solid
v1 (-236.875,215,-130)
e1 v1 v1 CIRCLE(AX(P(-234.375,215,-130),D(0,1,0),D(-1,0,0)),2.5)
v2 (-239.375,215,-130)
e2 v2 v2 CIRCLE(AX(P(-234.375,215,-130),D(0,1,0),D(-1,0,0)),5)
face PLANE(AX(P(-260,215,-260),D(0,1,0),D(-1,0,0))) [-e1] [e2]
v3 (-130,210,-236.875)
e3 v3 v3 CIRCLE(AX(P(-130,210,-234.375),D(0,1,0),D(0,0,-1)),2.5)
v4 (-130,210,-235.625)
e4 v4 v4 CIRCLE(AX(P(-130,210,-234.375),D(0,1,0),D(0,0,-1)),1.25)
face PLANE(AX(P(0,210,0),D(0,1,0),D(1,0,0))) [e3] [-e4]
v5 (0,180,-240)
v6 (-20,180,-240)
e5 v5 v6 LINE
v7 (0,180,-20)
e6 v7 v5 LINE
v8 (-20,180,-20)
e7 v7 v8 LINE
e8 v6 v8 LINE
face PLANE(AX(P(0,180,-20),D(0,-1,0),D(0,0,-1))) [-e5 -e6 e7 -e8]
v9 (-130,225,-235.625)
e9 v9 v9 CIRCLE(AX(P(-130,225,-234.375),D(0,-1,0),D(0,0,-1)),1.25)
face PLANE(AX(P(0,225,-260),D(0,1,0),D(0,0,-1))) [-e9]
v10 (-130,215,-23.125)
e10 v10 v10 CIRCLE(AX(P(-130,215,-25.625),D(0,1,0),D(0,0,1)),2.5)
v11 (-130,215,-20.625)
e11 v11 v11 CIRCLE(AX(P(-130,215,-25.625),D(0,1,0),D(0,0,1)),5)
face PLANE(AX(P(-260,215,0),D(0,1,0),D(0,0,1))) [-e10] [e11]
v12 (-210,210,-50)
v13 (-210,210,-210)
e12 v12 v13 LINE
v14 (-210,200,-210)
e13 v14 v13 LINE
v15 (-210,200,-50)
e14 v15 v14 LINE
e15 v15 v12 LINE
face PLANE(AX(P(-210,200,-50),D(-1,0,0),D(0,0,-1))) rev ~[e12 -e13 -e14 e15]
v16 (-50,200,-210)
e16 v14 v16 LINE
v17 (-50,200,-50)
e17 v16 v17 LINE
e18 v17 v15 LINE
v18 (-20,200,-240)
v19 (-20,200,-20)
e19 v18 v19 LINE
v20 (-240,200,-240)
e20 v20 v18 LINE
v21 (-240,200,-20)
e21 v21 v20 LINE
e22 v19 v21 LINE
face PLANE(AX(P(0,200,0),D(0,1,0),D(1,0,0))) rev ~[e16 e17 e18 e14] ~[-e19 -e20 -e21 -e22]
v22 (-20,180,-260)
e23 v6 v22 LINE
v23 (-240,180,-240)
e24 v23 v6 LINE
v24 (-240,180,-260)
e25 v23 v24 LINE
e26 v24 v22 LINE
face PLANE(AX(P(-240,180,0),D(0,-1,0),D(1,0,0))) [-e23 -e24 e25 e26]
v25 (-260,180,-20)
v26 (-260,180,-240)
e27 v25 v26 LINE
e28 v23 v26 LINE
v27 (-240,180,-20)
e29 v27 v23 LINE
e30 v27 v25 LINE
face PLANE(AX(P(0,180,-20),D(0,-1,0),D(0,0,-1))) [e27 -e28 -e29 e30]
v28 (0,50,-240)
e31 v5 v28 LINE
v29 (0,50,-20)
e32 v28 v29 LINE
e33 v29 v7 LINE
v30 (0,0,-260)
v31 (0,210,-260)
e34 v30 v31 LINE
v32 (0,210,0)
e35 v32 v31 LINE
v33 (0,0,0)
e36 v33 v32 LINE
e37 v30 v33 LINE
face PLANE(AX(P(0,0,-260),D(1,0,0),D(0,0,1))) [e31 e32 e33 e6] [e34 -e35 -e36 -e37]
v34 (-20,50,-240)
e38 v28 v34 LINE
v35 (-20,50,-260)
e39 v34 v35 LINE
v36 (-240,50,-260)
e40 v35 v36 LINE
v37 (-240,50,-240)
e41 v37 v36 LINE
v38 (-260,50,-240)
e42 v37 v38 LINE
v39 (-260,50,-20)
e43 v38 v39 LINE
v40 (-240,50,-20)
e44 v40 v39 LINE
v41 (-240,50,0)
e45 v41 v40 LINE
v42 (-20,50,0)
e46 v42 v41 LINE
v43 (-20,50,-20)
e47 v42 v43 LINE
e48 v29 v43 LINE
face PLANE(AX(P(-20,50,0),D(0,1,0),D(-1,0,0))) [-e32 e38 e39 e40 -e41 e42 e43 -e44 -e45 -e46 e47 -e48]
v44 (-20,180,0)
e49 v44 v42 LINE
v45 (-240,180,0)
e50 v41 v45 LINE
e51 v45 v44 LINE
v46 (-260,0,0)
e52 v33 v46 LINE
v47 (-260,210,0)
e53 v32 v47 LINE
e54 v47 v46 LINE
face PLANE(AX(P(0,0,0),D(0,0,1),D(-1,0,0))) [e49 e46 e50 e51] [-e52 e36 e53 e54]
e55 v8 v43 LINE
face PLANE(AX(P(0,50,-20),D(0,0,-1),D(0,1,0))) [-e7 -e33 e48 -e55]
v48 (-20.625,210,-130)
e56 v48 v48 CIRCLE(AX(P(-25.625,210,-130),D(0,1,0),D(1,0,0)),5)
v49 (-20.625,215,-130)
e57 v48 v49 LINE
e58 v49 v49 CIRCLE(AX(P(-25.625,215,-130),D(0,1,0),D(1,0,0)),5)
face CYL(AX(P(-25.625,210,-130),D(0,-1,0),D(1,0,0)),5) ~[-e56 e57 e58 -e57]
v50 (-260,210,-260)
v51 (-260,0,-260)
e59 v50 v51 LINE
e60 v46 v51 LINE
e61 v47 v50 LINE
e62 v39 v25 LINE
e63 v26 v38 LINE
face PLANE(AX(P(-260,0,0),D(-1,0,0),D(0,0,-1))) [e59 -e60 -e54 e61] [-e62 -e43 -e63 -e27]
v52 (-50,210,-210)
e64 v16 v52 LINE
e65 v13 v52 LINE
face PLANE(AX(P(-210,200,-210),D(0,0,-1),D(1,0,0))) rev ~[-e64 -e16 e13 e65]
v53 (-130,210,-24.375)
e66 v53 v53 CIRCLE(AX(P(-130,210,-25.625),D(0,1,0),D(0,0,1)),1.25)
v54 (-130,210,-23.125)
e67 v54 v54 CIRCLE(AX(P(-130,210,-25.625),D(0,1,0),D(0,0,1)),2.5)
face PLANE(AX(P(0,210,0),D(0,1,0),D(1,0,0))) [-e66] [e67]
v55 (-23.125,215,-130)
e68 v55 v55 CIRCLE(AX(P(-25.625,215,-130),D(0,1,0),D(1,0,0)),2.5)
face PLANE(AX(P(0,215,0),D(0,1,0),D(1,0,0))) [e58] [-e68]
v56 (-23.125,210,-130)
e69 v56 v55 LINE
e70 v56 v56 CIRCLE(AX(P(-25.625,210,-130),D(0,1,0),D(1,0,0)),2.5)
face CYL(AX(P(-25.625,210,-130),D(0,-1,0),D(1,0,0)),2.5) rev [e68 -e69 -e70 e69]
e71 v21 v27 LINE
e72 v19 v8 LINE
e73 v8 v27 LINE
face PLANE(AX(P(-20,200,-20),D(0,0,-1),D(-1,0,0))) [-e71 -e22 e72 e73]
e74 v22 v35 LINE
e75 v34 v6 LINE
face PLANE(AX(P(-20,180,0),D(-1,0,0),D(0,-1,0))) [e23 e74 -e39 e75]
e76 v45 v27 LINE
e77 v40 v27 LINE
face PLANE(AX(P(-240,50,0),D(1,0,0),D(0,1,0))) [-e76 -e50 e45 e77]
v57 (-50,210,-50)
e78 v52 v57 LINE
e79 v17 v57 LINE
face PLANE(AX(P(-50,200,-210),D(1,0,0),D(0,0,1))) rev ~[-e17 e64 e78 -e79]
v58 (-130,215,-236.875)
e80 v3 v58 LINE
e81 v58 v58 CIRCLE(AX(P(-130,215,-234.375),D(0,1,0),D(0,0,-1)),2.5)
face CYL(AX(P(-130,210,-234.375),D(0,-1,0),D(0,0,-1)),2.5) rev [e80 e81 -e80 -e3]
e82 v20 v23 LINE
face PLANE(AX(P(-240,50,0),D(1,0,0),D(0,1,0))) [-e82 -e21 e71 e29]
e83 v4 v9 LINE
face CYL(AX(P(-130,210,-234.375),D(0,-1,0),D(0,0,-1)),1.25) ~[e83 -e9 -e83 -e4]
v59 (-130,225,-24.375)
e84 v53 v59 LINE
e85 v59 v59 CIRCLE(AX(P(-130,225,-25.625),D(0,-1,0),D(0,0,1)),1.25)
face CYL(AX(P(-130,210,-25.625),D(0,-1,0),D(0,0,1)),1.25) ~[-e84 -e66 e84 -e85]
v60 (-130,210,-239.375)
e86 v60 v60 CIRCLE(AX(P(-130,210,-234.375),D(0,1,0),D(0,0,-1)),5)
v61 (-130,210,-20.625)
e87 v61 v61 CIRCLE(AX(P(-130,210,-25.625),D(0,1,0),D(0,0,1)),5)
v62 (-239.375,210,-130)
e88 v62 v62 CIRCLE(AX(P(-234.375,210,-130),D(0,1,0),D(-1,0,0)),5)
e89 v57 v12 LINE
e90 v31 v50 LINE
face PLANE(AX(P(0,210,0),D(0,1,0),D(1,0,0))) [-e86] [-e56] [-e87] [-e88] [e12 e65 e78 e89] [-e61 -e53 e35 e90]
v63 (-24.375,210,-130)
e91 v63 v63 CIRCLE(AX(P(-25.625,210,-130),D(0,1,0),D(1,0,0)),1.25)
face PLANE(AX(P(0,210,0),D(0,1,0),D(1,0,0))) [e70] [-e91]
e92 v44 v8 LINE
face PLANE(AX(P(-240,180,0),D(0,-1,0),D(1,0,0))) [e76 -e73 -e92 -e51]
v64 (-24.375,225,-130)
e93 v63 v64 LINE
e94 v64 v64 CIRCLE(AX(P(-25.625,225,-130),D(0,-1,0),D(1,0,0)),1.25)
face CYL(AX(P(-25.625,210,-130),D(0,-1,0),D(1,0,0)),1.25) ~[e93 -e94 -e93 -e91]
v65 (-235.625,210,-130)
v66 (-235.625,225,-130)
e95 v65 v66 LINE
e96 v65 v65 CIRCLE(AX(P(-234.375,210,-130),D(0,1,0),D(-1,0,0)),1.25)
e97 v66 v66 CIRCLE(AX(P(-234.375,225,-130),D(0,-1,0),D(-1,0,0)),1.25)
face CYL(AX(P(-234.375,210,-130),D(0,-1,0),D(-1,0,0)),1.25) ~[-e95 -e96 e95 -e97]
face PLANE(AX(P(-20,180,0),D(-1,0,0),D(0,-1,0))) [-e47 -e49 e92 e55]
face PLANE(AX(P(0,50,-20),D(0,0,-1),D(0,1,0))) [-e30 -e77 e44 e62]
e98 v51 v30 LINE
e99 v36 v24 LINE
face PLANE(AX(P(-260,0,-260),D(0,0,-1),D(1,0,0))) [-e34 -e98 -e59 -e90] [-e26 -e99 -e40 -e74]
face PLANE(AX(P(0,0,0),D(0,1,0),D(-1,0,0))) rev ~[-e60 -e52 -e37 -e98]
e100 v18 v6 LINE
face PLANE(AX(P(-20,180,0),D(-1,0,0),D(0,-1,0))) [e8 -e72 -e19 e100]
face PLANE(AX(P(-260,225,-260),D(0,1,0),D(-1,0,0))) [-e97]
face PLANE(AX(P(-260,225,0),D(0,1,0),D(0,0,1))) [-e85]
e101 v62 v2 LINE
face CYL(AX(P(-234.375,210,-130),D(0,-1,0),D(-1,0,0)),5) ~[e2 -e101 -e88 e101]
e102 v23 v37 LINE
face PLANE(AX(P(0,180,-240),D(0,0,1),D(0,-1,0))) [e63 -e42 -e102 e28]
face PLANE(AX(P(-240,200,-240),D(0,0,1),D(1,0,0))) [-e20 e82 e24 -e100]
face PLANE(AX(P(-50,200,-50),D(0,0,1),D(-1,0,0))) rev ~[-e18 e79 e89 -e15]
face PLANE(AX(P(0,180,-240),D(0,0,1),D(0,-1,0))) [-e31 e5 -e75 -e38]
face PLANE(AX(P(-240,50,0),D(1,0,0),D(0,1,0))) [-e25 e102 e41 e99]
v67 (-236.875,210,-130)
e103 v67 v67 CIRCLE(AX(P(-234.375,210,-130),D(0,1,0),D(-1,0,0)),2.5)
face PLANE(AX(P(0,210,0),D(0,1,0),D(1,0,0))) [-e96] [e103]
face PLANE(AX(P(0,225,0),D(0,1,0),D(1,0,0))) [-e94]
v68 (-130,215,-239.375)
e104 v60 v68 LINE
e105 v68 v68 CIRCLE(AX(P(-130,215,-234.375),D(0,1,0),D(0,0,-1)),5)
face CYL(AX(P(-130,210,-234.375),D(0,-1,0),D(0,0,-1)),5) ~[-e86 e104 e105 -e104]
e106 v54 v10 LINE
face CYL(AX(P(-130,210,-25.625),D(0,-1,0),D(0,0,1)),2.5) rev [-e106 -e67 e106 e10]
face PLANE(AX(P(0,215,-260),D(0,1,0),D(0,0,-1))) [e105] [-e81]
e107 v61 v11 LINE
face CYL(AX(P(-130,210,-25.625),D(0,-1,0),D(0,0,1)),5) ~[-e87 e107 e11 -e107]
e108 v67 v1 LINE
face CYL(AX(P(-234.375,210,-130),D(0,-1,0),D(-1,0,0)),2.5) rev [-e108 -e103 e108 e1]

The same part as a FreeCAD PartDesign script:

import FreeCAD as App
import Part
import Sketcher
Q = App.Units.Quantity

doc = App.newDocument("Part")
params = doc.addObject("Spreadsheet::Sheet", "Params")
for row, (alias, value) in enumerate([
    ("sketch1_width", "260 mm"),
    ("pad1_length", "200 mm"),
    ("sketch2_width", "220 mm"),
    ("pocket1_length", "150 mm"),
    ("sketch3_width", "220 mm"),
    ("sketch3_height", "130 mm"),
    ("pocket2_length", "260 mm"),
    ("sketch4_width", "130 mm"),
    ("sketch4_height", "220 mm"),
    ("pocket3_length", "260 mm"),
    ("sketch5_width", "260 mm"),
    ("pad2_length", "10 mm"),
    ("sketch6_diameter", "10 mm"),
    ("sketch6_diameter2", "5 mm"),
    ("pad3_length", "5 mm"),
    ("sketch7_diameter", "2.5 mm"),
    ("pad4_length", "15 mm"),
], start=1):
    params.set(f"A{row}", alias)
    params.set(f"B{row}", "=" + value)
    params.setAlias(f"B{row}", alias)

body = doc.addObject("PartDesign::Body", "Body")

sketch1 = body.newObject("Sketcher::SketchObject", "Sketch")
sketch1.AttachmentSupport = (doc.getObject("XZ_Plane"), [""])
sketch1.MapMode = "FlatFace"
sketch1.addGeometry(Part.LineSegment(App.Vector(-260, 0, 0), App.Vector(0, 0, 0)), False)
sketch1.addGeometry(Part.LineSegment(App.Vector(0, 0, 0), App.Vector(0, -260, 0)), False)
sketch1.addGeometry(Part.LineSegment(App.Vector(0, -260, 0), App.Vector(-260, -260, 0)), False)
sketch1.addGeometry(Part.LineSegment(App.Vector(-260, -260, 0), App.Vector(-260, 0, 0)), False)
sketch1.addConstraint(Sketcher.Constraint("Coincident", 0, 2, 1, 1))
sketch1.addConstraint(Sketcher.Constraint("Coincident", 1, 2, 2, 1))
sketch1.addConstraint(Sketcher.Constraint("Coincident", 2, 2, 3, 1))
sketch1.addConstraint(Sketcher.Constraint("Coincident", 3, 2, 0, 1))
sketch1.addConstraint(Sketcher.Constraint("Horizontal", 0))
sketch1.addConstraint(Sketcher.Constraint("Vertical", 1))
sketch1.addConstraint(Sketcher.Constraint("Horizontal", 2))
sketch1.addConstraint(Sketcher.Constraint("Vertical", 3))
sketch1.addConstraint(Sketcher.Constraint("Coincident", 0, 2, -1, 1))
sketch1.addConstraint(Sketcher.Constraint("Equal", 2, 1))
sketch1.addConstraint(Sketcher.Constraint("DistanceX", 0, 1, 0, 2, Q("260 mm")))
sketch1.setExpression("Constraints[10]", "Params.sketch1_width")
pad1 = body.newObject("PartDesign::Pad", "Pad")
pad1.Profile = sketch1
pad1.setExpression("Length", "Params.pad1_length")
pad1.Reversed = True

sketch2 = body.newObject("Sketcher::SketchObject", "Sketch001")
sketch2.AttachmentSupport = (doc.getObject("XZ_Plane"), [""])
sketch2.MapMode = "FlatFace"
sketch2.AttachmentOffset = App.Placement(App.Vector(0, 0, -200), App.Rotation())
sketch2.addGeometry(Part.LineSegment(App.Vector(-240, -20, 0), App.Vector(-20, -20, 0)), False)
sketch2.addGeometry(Part.LineSegment(App.Vector(-20, -20, 0), App.Vector(-20, -240, 0)), False)
sketch2.addGeometry(Part.LineSegment(App.Vector(-20, -240, 0), App.Vector(-240, -240, 0)), False)
sketch2.addGeometry(Part.LineSegment(App.Vector(-240, -240, 0), App.Vector(-240, -20, 0)), False)
sketch2.addConstraint(Sketcher.Constraint("Coincident", 0, 2, 1, 1))
sketch2.addConstraint(Sketcher.Constraint("Coincident", 1, 2, 2, 1))
sketch2.addConstraint(Sketcher.Constraint("Coincident", 2, 2, 3, 1))
sketch2.addConstraint(Sketcher.Constraint("Coincident", 3, 2, 0, 1))
sketch2.addConstraint(Sketcher.Constraint("Horizontal", 0))
sketch2.addConstraint(Sketcher.Constraint("Vertical", 1))
sketch2.addConstraint(Sketcher.Constraint("Horizontal", 2))
sketch2.addConstraint(Sketcher.Constraint("Vertical", 3))
sketch2.addConstraint(Sketcher.Constraint("Equal", 2, 1))
sketch2.addConstraint(Sketcher.Constraint("DistanceX", 0, 2, -1, 1, Q("20 mm")))
sketch2.addConstraint(Sketcher.Constraint("DistanceY", 0, 2, -1, 1, Q("20 mm")))
sketch2.addConstraint(Sketcher.Constraint("DistanceX", 0, 1, 0, 2, Q("220 mm")))
sketch2.setExpression("Constraints[11]", "Params.sketch2_width")
pocket1 = body.newObject("PartDesign::Pocket", "Pocket")
pocket1.Profile = sketch2
pocket1.setExpression("Length", "Params.pocket1_length")
pocket1.Reversed = True

sketch3 = body.newObject("Sketcher::SketchObject", "Sketch002")
sketch3.AttachmentSupport = (doc.getObject("XY_Plane"), [""])
sketch3.MapMode = "FlatFace"
sketch3.addGeometry(Part.LineSegment(App.Vector(-20, 180, 0), App.Vector(-240, 180, 0)), False)
sketch3.addGeometry(Part.LineSegment(App.Vector(-240, 180, 0), App.Vector(-240, 50, 0)), False)
sketch3.addGeometry(Part.LineSegment(App.Vector(-240, 50, 0), App.Vector(-20, 50, 0)), False)
sketch3.addGeometry(Part.LineSegment(App.Vector(-20, 50, 0), App.Vector(-20, 180, 0)), False)
sketch3.addConstraint(Sketcher.Constraint("Coincident", 0, 2, 1, 1))
sketch3.addConstraint(Sketcher.Constraint("Coincident", 1, 2, 2, 1))
sketch3.addConstraint(Sketcher.Constraint("Coincident", 2, 2, 3, 1))
sketch3.addConstraint(Sketcher.Constraint("Coincident", 3, 2, 0, 1))
sketch3.addConstraint(Sketcher.Constraint("Horizontal", 0))
sketch3.addConstraint(Sketcher.Constraint("Vertical", 1))
sketch3.addConstraint(Sketcher.Constraint("Horizontal", 2))
sketch3.addConstraint(Sketcher.Constraint("Vertical", 3))
sketch3.addConstraint(Sketcher.Constraint("DistanceY", -1, 1, 1, 2, Q("50 mm")))
sketch3.addConstraint(Sketcher.Constraint("DistanceX", 2, 2, -1, 1, Q("20 mm")))
sketch3.addConstraint(Sketcher.Constraint("DistanceX", 0, 2, 0, 1, Q("220 mm")))
sketch3.addConstraint(Sketcher.Constraint("DistanceY", 1, 2, 1, 1, Q("130 mm")))
sketch3.setExpression("Constraints[10]", "Params.sketch3_width")
sketch3.setExpression("Constraints[11]", "Params.sketch3_height")
pocket2 = body.newObject("PartDesign::Pocket", "Pocket001")
pocket2.Profile = sketch3
pocket2.setExpression("Length", "Params.pocket2_length")

sketch4 = body.newObject("Sketcher::SketchObject", "Sketch003")
sketch4.AttachmentSupport = (doc.getObject("YZ_Plane"), [""])
sketch4.MapMode = "FlatFace"
sketch4.addGeometry(Part.LineSegment(App.Vector(180, -240, 0), App.Vector(180, -20, 0)), False)
sketch4.addGeometry(Part.LineSegment(App.Vector(180, -20, 0), App.Vector(50, -20, 0)), False)
sketch4.addGeometry(Part.LineSegment(App.Vector(50, -20, 0), App.Vector(50, -240, 0)), False)
sketch4.addGeometry(Part.LineSegment(App.Vector(50, -240, 0), App.Vector(180, -240, 0)), False)
sketch4.addConstraint(Sketcher.Constraint("Coincident", 0, 2, 1, 1))
sketch4.addConstraint(Sketcher.Constraint("Coincident", 1, 2, 2, 1))
sketch4.addConstraint(Sketcher.Constraint("Coincident", 2, 2, 3, 1))
sketch4.addConstraint(Sketcher.Constraint("Coincident", 3, 2, 0, 1))
sketch4.addConstraint(Sketcher.Constraint("Vertical", 0))
sketch4.addConstraint(Sketcher.Constraint("Horizontal", 1))
sketch4.addConstraint(Sketcher.Constraint("Vertical", 2))
sketch4.addConstraint(Sketcher.Constraint("Horizontal", 3))
sketch4.addConstraint(Sketcher.Constraint("DistanceY", 0, 2, -1, 1, Q("20 mm")))
sketch4.addConstraint(Sketcher.Constraint("DistanceX", -1, 1, 1, 2, Q("50 mm")))
sketch4.addConstraint(Sketcher.Constraint("DistanceX", 1, 2, 1, 1, Q("130 mm")))
sketch4.addConstraint(Sketcher.Constraint("DistanceY", 0, 1, 0, 2, Q("220 mm")))
sketch4.setExpression("Constraints[10]", "Params.sketch4_width")
sketch4.setExpression("Constraints[11]", "Params.sketch4_height")
pocket3 = body.newObject("PartDesign::Pocket", "Pocket002")
pocket3.Profile = sketch4
pocket3.setExpression("Length", "Params.pocket3_length")

sketch5 = body.newObject("Sketcher::SketchObject", "Sketch004")
sketch5.AttachmentSupport = (doc.getObject("XZ_Plane"), [""])
sketch5.MapMode = "FlatFace"
sketch5.AttachmentOffset = App.Placement(App.Vector(0, 0, -200), App.Rotation())
sketch5.addGeometry(Part.LineSegment(App.Vector(-260, 0, 0), App.Vector(0, 0, 0)), False)
sketch5.addGeometry(Part.LineSegment(App.Vector(0, 0, 0), App.Vector(0, -260, 0)), False)
sketch5.addGeometry(Part.LineSegment(App.Vector(0, -260, 0), App.Vector(-260, -260, 0)), False)
sketch5.addGeometry(Part.LineSegment(App.Vector(-260, -260, 0), App.Vector(-260, 0, 0)), False)
sketch5.addGeometry(Part.LineSegment(App.Vector(-210, -50, 0), App.Vector(-210, -210, 0)), False)
sketch5.addGeometry(Part.LineSegment(App.Vector(-210, -210, 0), App.Vector(-50, -210, 0)), False)
sketch5.addGeometry(Part.LineSegment(App.Vector(-50, -210, 0), App.Vector(-50, -50, 0)), False)
sketch5.addGeometry(Part.LineSegment(App.Vector(-50, -50, 0), App.Vector(-210, -50, 0)), False)
sketch5.addConstraint(Sketcher.Constraint("Coincident", 0, 2, 1, 1))
sketch5.addConstraint(Sketcher.Constraint("Coincident", 1, 2, 2, 1))
sketch5.addConstraint(Sketcher.Constraint("Coincident", 2, 2, 3, 1))
sketch5.addConstraint(Sketcher.Constraint("Coincident", 3, 2, 0, 1))
sketch5.addConstraint(Sketcher.Constraint("Coincident", 4, 2, 5, 1))
sketch5.addConstraint(Sketcher.Constraint("Coincident", 5, 2, 6, 1))
sketch5.addConstraint(Sketcher.Constraint("Coincident", 6, 2, 7, 1))
sketch5.addConstraint(Sketcher.Constraint("Coincident", 7, 2, 4, 1))
sketch5.addConstraint(Sketcher.Constraint("Horizontal", 0))
sketch5.addConstraint(Sketcher.Constraint("Vertical", 1))
sketch5.addConstraint(Sketcher.Constraint("Horizontal", 2))
sketch5.addConstraint(Sketcher.Constraint("Vertical", 3))
sketch5.addConstraint(Sketcher.Constraint("Vertical", 4))
sketch5.addConstraint(Sketcher.Constraint("Horizontal", 5))
sketch5.addConstraint(Sketcher.Constraint("Vertical", 6))
sketch5.addConstraint(Sketcher.Constraint("Horizontal", 7))
sketch5.addConstraint(Sketcher.Constraint("Coincident", 0, 2, -1, 1))
sketch5.addConstraint(Sketcher.Constraint("Equal", 2, 1))
sketch5.addConstraint(Sketcher.Constraint("Equal", 7, 4))
sketch5.addConstraint(Sketcher.Constraint("DistanceX", 5, 2, -1, 1, Q("50 mm")))
sketch5.addConstraint(Sketcher.Constraint("DistanceY", 6, 2, -1, 1, Q("50 mm")))
sketch5.addConstraint(Sketcher.Constraint("DistanceX", 2, 2, 4, 2, Q("50 mm")))
sketch5.addConstraint(Sketcher.Constraint("DistanceX", 0, 1, 0, 2, Q("260 mm")))
sketch5.setExpression("Constraints[22]", "Params.sketch5_width")
pad2 = body.newObject("PartDesign::Pad", "Pad001")
pad2.Profile = sketch5
pad2.setExpression("Length", "Params.pad2_length")
pad2.Reversed = True

sketch6 = body.newObject("Sketcher::SketchObject", "Sketch005")
sketch6.AttachmentSupport = (doc.getObject("XZ_Plane"), [""])
sketch6.MapMode = "FlatFace"
sketch6.AttachmentOffset = App.Placement(App.Vector(0, 0, -210), App.Rotation())
sketch6.addGeometry(Part.Circle(App.Vector(-25.6, -130, 0), App.Vector(0, 0, 1), 5), False)
sketch6.addGeometry(Part.Circle(App.Vector(-25.6, -130, 0), App.Vector(0, 0, 1), 2.5), False)
sketch6.addConstraint(Sketcher.Constraint("Coincident", 1, 3, 0, 3))
sketch6.addConstraint(Sketcher.Constraint("Diameter", 0, Q("10 mm")))
sketch6.addConstraint(Sketcher.Constraint("Diameter", 1, Q("5 mm")))
sketch6.addConstraint(Sketcher.Constraint("DistanceY", 0, 3, -1, 1, Q("130 mm")))
sketch6.addConstraint(Sketcher.Constraint("DistanceX", 0, 3, -1, 1, Q("25.625 mm")))
sketch6.setExpression("Constraints[1]", "Params.sketch6_diameter")
sketch6.setExpression("Constraints[2]", "Params.sketch6_diameter2")
pad3 = body.newObject("PartDesign::Pad", "Pad002")
pad3.Profile = sketch6
pad3.setExpression("Length", "Params.pad3_length")
pad3.Reversed = True

sketch7 = body.newObject("Sketcher::SketchObject", "Sketch006")
sketch7.AttachmentSupport = (doc.getObject("XZ_Plane"), [""])
sketch7.MapMode = "FlatFace"
sketch7.AttachmentOffset = App.Placement(App.Vector(0, 0, -210), App.Rotation())
sketch7.addGeometry(Part.Circle(App.Vector(-25.6, -130, 0), App.Vector(0, 0, 1), 1.2), False)
sketch7.addConstraint(Sketcher.Constraint("Diameter", 0, Q("2.5 mm")))
sketch7.addConstraint(Sketcher.Constraint("DistanceY", 0, 3, -1, 1, Q("130 mm")))
sketch7.addConstraint(Sketcher.Constraint("DistanceX", 0, 3, -1, 1, Q("25.625 mm")))
sketch7.setExpression("Constraints[0]", "Params.sketch7_diameter")
pad4 = body.newObject("PartDesign::Pad", "Pad003")
pad4.Profile = sketch7
pad4.setExpression("Length", "Params.pad4_length")
pad4.Reversed = True
doc.recompute()

datumline = body.newObject("PartDesign::Line", "DatumLine")
datumline.Placement = App.Placement(App.Vector(-130, 0, -130), App.Rotation(App.Vector(0, 0, 1), App.Vector(0, 1, 0)))
polarpattern = body.newObject("PartDesign::PolarPattern", "PolarPattern")
polarpattern.Originals = [pad4, pad3]
polarpattern.Axis = (datumline, [""])
polarpattern.Angle = 360
polarpattern.Occurrences = 4
body.Tip = polarpattern

doc.recompute()
